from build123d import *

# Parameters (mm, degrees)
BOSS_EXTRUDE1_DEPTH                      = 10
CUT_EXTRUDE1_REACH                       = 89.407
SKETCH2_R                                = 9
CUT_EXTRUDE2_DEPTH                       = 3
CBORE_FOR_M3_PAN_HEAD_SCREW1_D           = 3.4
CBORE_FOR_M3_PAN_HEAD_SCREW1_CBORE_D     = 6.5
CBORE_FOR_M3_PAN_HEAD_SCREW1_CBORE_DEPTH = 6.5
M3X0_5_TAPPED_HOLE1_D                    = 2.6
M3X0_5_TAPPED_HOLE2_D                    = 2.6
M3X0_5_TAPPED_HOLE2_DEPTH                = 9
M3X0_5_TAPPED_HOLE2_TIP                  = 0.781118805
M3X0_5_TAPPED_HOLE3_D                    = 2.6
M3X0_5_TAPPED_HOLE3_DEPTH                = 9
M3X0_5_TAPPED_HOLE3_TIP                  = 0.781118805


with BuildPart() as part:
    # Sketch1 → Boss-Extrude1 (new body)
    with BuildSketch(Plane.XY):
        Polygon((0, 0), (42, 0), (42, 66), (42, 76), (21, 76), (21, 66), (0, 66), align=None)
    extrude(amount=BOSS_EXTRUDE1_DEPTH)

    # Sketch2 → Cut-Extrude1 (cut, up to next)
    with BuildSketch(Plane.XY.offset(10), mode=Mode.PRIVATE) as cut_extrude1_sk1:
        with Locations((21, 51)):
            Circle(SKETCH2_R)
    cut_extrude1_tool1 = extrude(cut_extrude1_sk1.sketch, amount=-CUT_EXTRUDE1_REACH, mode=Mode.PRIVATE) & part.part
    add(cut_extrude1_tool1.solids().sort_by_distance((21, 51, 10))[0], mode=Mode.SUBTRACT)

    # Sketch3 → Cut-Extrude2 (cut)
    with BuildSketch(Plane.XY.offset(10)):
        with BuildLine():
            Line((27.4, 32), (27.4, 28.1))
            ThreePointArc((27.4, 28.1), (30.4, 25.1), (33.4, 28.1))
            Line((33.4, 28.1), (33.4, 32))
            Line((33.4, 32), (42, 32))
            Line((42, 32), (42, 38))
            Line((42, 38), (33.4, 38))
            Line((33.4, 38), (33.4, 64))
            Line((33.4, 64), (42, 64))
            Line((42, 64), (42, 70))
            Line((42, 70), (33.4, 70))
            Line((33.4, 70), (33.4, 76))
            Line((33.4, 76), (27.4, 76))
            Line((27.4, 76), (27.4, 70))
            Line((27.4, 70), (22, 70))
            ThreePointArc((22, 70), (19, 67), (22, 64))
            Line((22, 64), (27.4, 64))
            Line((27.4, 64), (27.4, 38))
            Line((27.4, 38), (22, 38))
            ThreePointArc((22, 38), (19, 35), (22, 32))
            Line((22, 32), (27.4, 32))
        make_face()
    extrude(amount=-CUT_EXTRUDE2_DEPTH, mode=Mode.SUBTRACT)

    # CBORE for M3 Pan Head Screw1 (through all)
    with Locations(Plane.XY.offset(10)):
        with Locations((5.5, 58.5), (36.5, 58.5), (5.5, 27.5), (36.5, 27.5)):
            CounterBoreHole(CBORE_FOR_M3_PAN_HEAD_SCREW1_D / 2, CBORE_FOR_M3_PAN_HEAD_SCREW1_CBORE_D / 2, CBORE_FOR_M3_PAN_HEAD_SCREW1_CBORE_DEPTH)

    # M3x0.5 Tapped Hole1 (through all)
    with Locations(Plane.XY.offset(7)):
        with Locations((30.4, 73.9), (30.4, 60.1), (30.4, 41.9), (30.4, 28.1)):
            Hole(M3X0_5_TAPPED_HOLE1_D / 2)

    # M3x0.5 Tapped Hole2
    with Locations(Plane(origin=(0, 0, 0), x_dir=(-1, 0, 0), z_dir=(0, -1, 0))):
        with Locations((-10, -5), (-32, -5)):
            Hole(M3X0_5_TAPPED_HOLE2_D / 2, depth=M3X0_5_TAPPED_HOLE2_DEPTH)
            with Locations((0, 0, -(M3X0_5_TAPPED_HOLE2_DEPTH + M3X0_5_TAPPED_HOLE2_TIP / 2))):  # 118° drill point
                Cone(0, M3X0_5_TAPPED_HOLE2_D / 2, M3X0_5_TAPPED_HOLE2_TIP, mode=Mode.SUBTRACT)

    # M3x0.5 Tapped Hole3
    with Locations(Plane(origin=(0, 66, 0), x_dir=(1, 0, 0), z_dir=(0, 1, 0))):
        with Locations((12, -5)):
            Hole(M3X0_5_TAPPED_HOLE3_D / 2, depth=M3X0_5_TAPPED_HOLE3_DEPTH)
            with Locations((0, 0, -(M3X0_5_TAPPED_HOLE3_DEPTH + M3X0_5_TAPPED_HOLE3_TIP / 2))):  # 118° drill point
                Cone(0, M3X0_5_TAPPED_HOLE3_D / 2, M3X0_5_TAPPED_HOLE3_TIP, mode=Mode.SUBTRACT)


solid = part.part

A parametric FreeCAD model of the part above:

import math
import FreeCAD as App
import Part
import Sketcher
from FreeCAD import Vector
Q = App.Units.Quantity


def add_polygon(sketch, points):
    """Adds a closed chain of lines whose ends are joined by coincident constraints."""
    first, n = sketch.GeometryCount, len(points)
    for a, b in zip(points, points[1:] + points[:1]):
        sketch.addGeometry(Part.LineSegment(App.Vector(*a, 0), App.Vector(*b, 0)), False)
    for i in range(n):
        sketch.addConstraint(Sketcher.Constraint("Coincident", first + i, 2, first + (i + 1) % n, 1))

doc = App.newDocument("Part")
body = doc.addObject("PartDesign::Body", "Body")

# Sketch on XY plane
sketch1 = body.newObject("Sketcher::SketchObject", "Sketch")
sketch1.AttachmentSupport = (doc.getObject("XY_Plane"), [""])
sketch1.MapMode = "FlatFace"
add_polygon(sketch1, [(0, 0), (42, 0), (42, 76), (21, 76), (21, 66), (0, 66)])  # lines 0-5
sketch1.addConstraint(Sketcher.Constraint("Horizontal", 0))
sketch1.addConstraint(Sketcher.Constraint("Vertical", 1))
sketch1.addConstraint(Sketcher.Constraint("Horizontal", 2))
sketch1.addConstraint(Sketcher.Constraint("Vertical", 3))
sketch1.addConstraint(Sketcher.Constraint("Horizontal", 4))
sketch1.addConstraint(Sketcher.Constraint("Vertical", 5))
sketch1.addConstraint(Sketcher.Constraint("Coincident", 5, 2, -1, 1))
sketch1.addConstraint(Sketcher.Constraint("Equal", 2, 4))
sketch1.addConstraint(Sketcher.Constraint("DistanceX", 0, 1, 0, 2, Q("42 mm")))
sketch1.addConstraint(Sketcher.Constraint("DistanceY", 1, 1, 1, 2, Q("76 mm")))
sketch1.addConstraint(Sketcher.Constraint("DistanceY", 3, 2, 3, 1, Q("10 mm")))
pad1 = body.newObject("PartDesign::Pad", "Pad")
pad1.Profile = sketch1
pad1.Length = 10

# Sketch on XY plane
sketch2 = body.newObject("Sketcher::SketchObject", "Sketch001")
sketch2.AttachmentSupport = (doc.getObject("XY_Plane"), [""])
sketch2.MapMode = "FlatFace"
sketch2.AttachmentOffset = App.Placement(Vector(0, 0, 10), App.Rotation())
sketch2.addGeometry(Part.Circle(Vector(21, 51, 0), Vector(0, 0, 1), 9), False)
sketch2.addConstraint(Sketcher.Constraint("Diameter", 0, Q("18 mm")))
sketch2.addConstraint(Sketcher.Constraint("DistanceX", -1, 1, 0, 3, Q("21 mm")))
sketch2.addConstraint(Sketcher.Constraint("DistanceY", -1, 1, 0, 3, Q("51 mm")))
pocket1 = body.newObject("PartDesign::Pocket", "Pocket")
pocket1.Profile = sketch2
pocket1.Type = "UpToFirst"

# Sketch on XY plane
sketch3 = body.newObject("Sketcher::SketchObject", "Sketch002")
sketch3.AttachmentSupport = (doc.getObject("XY_Plane"), [""])
sketch3.MapMode = "FlatFace"
sketch3.AttachmentOffset = App.Placement(Vector(0, 0, 10), App.Rotation())
sketch3.addGeometry(Part.LineSegment(Vector(27.4, 32, 0), Vector(27.4, 28.1, 0)), False)
sketch3.addGeometry(Part.ArcOfCircle(Part.Circle(Vector(30.4, 28.1, 0), Vector(0, 0, 1), 3), math.radians(180), math.radians(360)), False)
sketch3.addGeometry(Part.LineSegment(Vector(33.4, 28.1, 0), Vector(33.4, 32, 0)), False)
sketch3.addGeometry(Part.LineSegment(Vector(33.4, 32, 0), Vector(42, 32, 0)), False)
sketch3.addGeometry(Part.LineSegment(Vector(42, 32, 0), Vector(42, 38, 0)), False)
sketch3.addGeometry(Part.LineSegment(Vector(42, 38, 0), Vector(33.4, 38, 0)), False)
sketch3.addGeometry(Part.LineSegment(Vector(33.4, 38, 0), Vector(33.4, 64, 0)), False)
sketch3.addGeometry(Part.LineSegment(Vector(33.4, 64, 0), Vector(42, 64, 0)), False)
sketch3.addGeometry(Part.LineSegment(Vector(42, 64, 0), Vector(42, 70, 0)), False)
sketch3.addGeometry(Part.LineSegment(Vector(42, 70, 0), Vector(33.4, 70, 0)), False)
sketch3.addGeometry(Part.LineSegment(Vector(33.4, 70, 0), Vector(33.4, 76, 0)), False)
sketch3.addGeometry(Part.LineSegment(Vector(33.4, 76, 0), Vector(27.4, 76, 0)), False)
sketch3.addGeometry(Part.LineSegment(Vector(27.4, 76, 0), Vector(27.4, 70, 0)), False)
sketch3.addGeometry(Part.LineSegment(Vector(27.4, 70, 0), Vector(22, 70, 0)), False)
sketch3.addGeometry(Part.ArcOfCircle(Part.Circle(Vector(22, 67, 0), Vector(0, 0, 1), 3), math.radians(90), math.radians(270)), False)
sketch3.addGeometry(Part.LineSegment(Vector(22, 64, 0), Vector(27.4, 64, 0)), False)
sketch3.addGeometry(Part.LineSegment(Vector(27.4, 64, 0), Vector(27.4, 38, 0)), False)
sketch3.addGeometry(Part.LineSegment(Vector(27.4, 38, 0), Vector(22, 38, 0)), False)
sketch3.addGeometry(Part.ArcOfCircle(Part.Circle(Vector(22, 35, 0), Vector(0, 0, 1), 3), math.radians(90), math.radians(270)), False)
sketch3.addGeometry(Part.LineSegment(Vector(22, 32, 0), Vector(27.4, 32, 0)), False)
sketch3.addConstraint(Sketcher.Constraint("Tangent", 0, 2, 1, 1))
sketch3.addConstraint(Sketcher.Constraint("Tangent", 1, 2, 2, 1))
sketch3.addConstraint(Sketcher.Constraint("Coincident", 2, 2, 3, 1))
sketch3.addConstraint(Sketcher.Constraint("Coincident", 3, 2, 4, 1))
sketch3.addConstraint(Sketcher.Constraint("Coincident", 4, 2, 5, 1))
sketch3.addConstraint(Sketcher.Constraint("Coincident", 5, 2, 6, 1))
sketch3.addConstraint(Sketcher.Constraint("Coincident", 6, 2, 7, 1))
sketch3.addConstraint(Sketcher.Constraint("Coincident", 7, 2, 8, 1))
sketch3.addConstraint(Sketcher.Constraint("Coincident", 8, 2, 9, 1))
sketch3.addConstraint(Sketcher.Constraint("Coincident", 9, 2, 10, 1))
sketch3.addConstraint(Sketcher.Constraint("Coincident", 10, 2, 11, 1))
sketch3.addConstraint(Sketcher.Constraint("Coincident", 11, 2, 12, 1))
sketch3.addConstraint(Sketcher.Constraint("Coincident", 12, 2, 13, 1))
sketch3.addConstraint(Sketcher.Constraint("Tangent", 13, 2, 14, 1))
sketch3.addConstraint(Sketcher.Constraint("Tangent", 14, 2, 15, 1))
sketch3.addConstraint(Sketcher.Constraint("Coincident", 15, 2, 16, 1))
sketch3.addConstraint(Sketcher.Constraint("Coincident", 16, 2, 17, 1))
sketch3.addConstraint(Sketcher.Constraint("Tangent", 17, 2, 18, 1))
sketch3.addConstraint(Sketcher.Constraint("Tangent", 18, 2, 19, 1))
sketch3.addConstraint(Sketcher.Constraint("Coincident", 19, 2, 0, 1))
sketch3.addConstraint(Sketcher.Constraint("Vertical", 0))
sketch3.addConstraint(Sketcher.Constraint("Vertical", 2))
sketch3.addConstraint(Sketcher.Constraint("Horizontal", 3))
sketch3.addConstraint(Sketcher.Constraint("Vertical", 4))
sketch3.addConstraint(Sketcher.Constraint("Horizontal", 5))
sketch3.addConstraint(Sketcher.Constraint("Vertical", 6))
sketch3.addConstraint(Sketcher.Constraint("Horizontal", 7))
sketch3.addConstraint(Sketcher.Constraint("Vertical", 8))
sketch3.addConstraint(Sketcher.Constraint("Horizontal", 9))
sketch3.addConstraint(Sketcher.Constraint("Vertical", 10))
sketch3.addConstraint(Sketcher.Constraint("Horizontal", 11))
sketch3.addConstraint(Sketcher.Constraint("Vertical", 12))
sketch3.addConstraint(Sketcher.Constraint("Horizontal", 13))
sketch3.addConstraint(Sketcher.Constraint("Horizontal", 15))
sketch3.addConstraint(Sketcher.Constraint("Vertical", 16))
sketch3.addConstraint(Sketcher.Constraint("Horizontal", 17))
sketch3.addConstraint(Sketcher.Constraint("Horizontal", 19))
sketch3.addConstraint(Sketcher.Constraint("Equal", 1, 14))
sketch3.addConstraint(Sketcher.Constraint("Equal", 14, 18))
sketch3.addConstraint(Sketcher.Constraint("Horizontal", 9, 2, 12, 2))
sketch3.addConstraint(Sketcher.Constraint("Horizontal", 7, 2, 14, 2))
sketch3.addConstraint(Sketcher.Constraint("Horizontal", 5, 2, 16, 2))
sketch3.addConstraint(Sketcher.Constraint("Horizontal", 3, 2, 18, 2))
sketch3.addConstraint(Sketcher.Constraint("Vertical", 14, 3, 18, 3))
sketch3.addConstraint(Sketcher.Constraint("Vertical", 2, 2, 5, 2))
sketch3.addConstraint(Sketcher.Constraint("Vertical", 4, 2, 7, 2))
sketch3.addConstraint(Sketcher.Constraint("Vertical", 6, 2, 9, 2))
sketch3.addConstraint(Sketcher.Constraint("Vertical", 0, 2, 11, 2))
sketch3.addConstraint(Sketcher.Constraint("Vertical", 12, 2, 15, 2))
sketch3.addConstraint(Sketcher.Constraint("Equal", 8, 10))
sketch3.addConstraint(Sketcher.Constraint("Radius", 1, Q("3 mm")))
sketch3.addConstraint(Sketcher.Constraint("DistanceY", 6, 1, 6, 2, Q("26 mm")))
sketch3.addConstraint(Sketcher.Constraint("DistanceX", 3, 1, 3, 2, Q("8.6 mm")))
sketch3.addConstraint(Sketcher.Constraint("DistanceX", 13, 2, 13, 1, Q("5.4 mm")))
sketch3.addConstraint(Sketcher.Constraint("DistanceY", 0, 2, 0, 1, Q("3.9 mm")))
sketch3.addConstraint(Sketcher.Constraint("DistanceX", -1, 1, 14, 3, Q("22 mm")))
sketch3.addConstraint(Sketcher.Constraint("DistanceY", -1, 1, 14, 3, Q("67 mm")))
pocket2 = body.newObject("PartDesign::Pocket", "Pocket001")
pocket2.Profile = sketch3
pocket2.Length = 3

# Sketch on XY plane
sketch4 = body.newObject("Sketcher::SketchObject", "Sketch003")
sketch4.AttachmentSupport = (doc.getObject("XY_Plane"), [""])
sketch4.MapMode = "FlatFace"
sketch4.AttachmentOffset = App.Placement(Vector(0, 0, 10), App.Rotation())
sketch4.addGeometry(Part.Circle(Vector(5.5, 58.5, 0), Vector(0, 0, 1), 1.7), False)
sketch4.addGeometry(Part.Circle(Vector(36.5, 58.5, 0), Vector(0, 0, 1), 1.7), False)
sketch4.addGeometry(Part.Circle(Vector(5.5, 27.5, 0), Vector(0, 0, 1), 1.7), False)
sketch4.addGeometry(Part.Circle(Vector(36.5, 27.5, 0), Vector(0, 0, 1), 1.7), False)
sketch4.addConstraint(Sketcher.Constraint("Equal", 0, 1))
sketch4.addConstraint(Sketcher.Constraint("Equal", 1, 2))
sketch4.addConstraint(Sketcher.Constraint("Equal", 2, 3))
sketch4.addConstraint(Sketcher.Constraint("Horizontal", 0, 3, 1, 3))
sketch4.addConstraint(Sketcher.Constraint("Horizontal", 2, 3, 3, 3))
sketch4.addConstraint(Sketcher.Constraint("Vertical", 0, 3, 2, 3))
sketch4.addConstraint(Sketcher.Constraint("Vertical", 1, 3, 3, 3))
sketch4.addConstraint(Sketcher.Constraint("Diameter", 0, Q("3.4 mm")))
sketch4.addConstraint(Sketcher.Constraint("DistanceX", 0, 3, 1, 3, Q("31 mm")))
sketch4.addConstraint(Sketcher.Constraint("DistanceY", 2, 3, 0, 3, Q("31 mm")))
sketch4.addConstraint(Sketcher.Constraint("DistanceX", -1, 1, 0, 3, Q("5.5 mm")))
sketch4.addConstraint(Sketcher.Constraint("DistanceY", -1, 1, 0, 3, Q("58.5 mm")))
doc.recompute()
hole = body.newObject("PartDesign::Hole", "Hole")
hole.Profile = sketch4
hole.ThreadType = "None"
hole.Diameter = 3.4
hole.DepthType = "ThroughAll"
hole.HoleCutType = "Counterbore"
hole.HoleCutDiameter = 6.5
hole.HoleCutDepth = 6.5

# Sketch on XY plane
sketch5 = body.newObject("Sketcher::SketchObject", "Sketch004")
sketch5.AttachmentSupport = (doc.getObject("XY_Plane"), [""])
sketch5.MapMode = "FlatFace"
sketch5.AttachmentOffset = App.Placement(Vector(0, 0, 7), App.Rotation())
sketch5.addGeometry(Part.Circle(Vector(30.4, 73.9, 0), Vector(0, 0, 1), 1.3), False)
sketch5.addGeometry(Part.Circle(Vector(30.4, 60.1, 0), Vector(0, 0, 1), 1.3), False)
sketch5.addGeometry(Part.Circle(Vector(30.4, 41.9, 0), Vector(0, 0, 1), 1.3), False)
sketch5.addGeometry(Part.Circle(Vector(30.4, 28.1, 0), Vector(0, 0, 1), 1.3), False)
sketch5.addConstraint(Sketcher.Constraint("Equal", 0, 1))
sketch5.addConstraint(Sketcher.Constraint("Equal", 1, 2))
sketch5.addConstraint(Sketcher.Constraint("Equal", 2, 3))
sketch5.addConstraint(Sketcher.Constraint("Vertical", 0, 3, 1, 3))
sketch5.addConstraint(Sketcher.Constraint("Vertical", 1, 3, 2, 3))
sketch5.addConstraint(Sketcher.Constraint("Vertical", 2, 3, 3, 3))
sketch5.addConstraint(Sketcher.Constraint("Diameter", 0, Q("2.6 mm")))
sketch5.addConstraint(Sketcher.Constraint("DistanceY", 2, 3, 0, 3, Q("32 mm")))
sketch5.addConstraint(Sketcher.Constraint("DistanceY", 3, 3, 1, 3, Q("32 mm")))
sketch5.addConstraint(Sketcher.Constraint("DistanceX", -1, 1, 0, 3, Q("30.4 mm")))
sketch5.addConstraint(Sketcher.Constraint("DistanceY", -1, 1, 0, 3, Q("73.9 mm")))
sketch5.addConstraint(Sketcher.Constraint("DistanceY", -1, 1, 1, 3, Q("60.1 mm")))
doc.recompute()
hole2 = body.newObject("PartDesign::Hole", "Hole001")
hole2.Profile = sketch5
hole2.ThreadType = "None"
hole2.Diameter = 2.6
hole2.DepthType = "ThroughAll"

# Sketch on XZ plane
sketch6 = body.newObject("Sketcher::SketchObject", "Sketch005")
sketch6.AttachmentSupport = (doc.getObject("XZ_Plane"), [""])
sketch6.MapMode = "FlatFace"
sketch6.addGeometry(Part.Circle(Vector(10, 5, 0), Vector(0, 0, 1), 1.3), False)
sketch6.addGeometry(Part.Circle(Vector(32, 5, 0), Vector(0, 0, 1), 1.3), False)
sketch6.addConstraint(Sketcher.Constraint("Equal", 0, 1))
sketch6.addConstraint(Sketcher.Constraint("Horizontal", 0, 3, 1, 3))
sketch6.addConstraint(Sketcher.Constraint("Diameter", 0, Q("2.6 mm")))
sketch6.addConstraint(Sketcher.Constraint("DistanceX", -1, 1, 0, 3, Q("10 mm")))
sketch6.addConstraint(Sketcher.Constraint("DistanceY", -1, 1, 0, 3, Q("5 mm")))
sketch6.addConstraint(Sketcher.Constraint("DistanceX", -1, 1, 1, 3, Q("32 mm")))
doc.recompute()
hole3 = body.newObject("PartDesign::Hole", "Hole002")
hole3.Profile = sketch6
hole3.ThreadType = "None"
hole3.Diameter = 2.6
hole3.DepthType = "Dimension"
hole3.Depth = 9
hole3.DrillPoint = "Angled"
hole3.DrillPointAngle = 118

# Sketch on XZ plane
sketch7 = body.newObject("Sketcher::SketchObject", "Sketch006")
sketch7.AttachmentSupport = (doc.getObject("XZ_Plane"), [""])
sketch7.MapMode = "FlatFace"
sketch7.AttachmentOffset = App.Placement(Vector(0, 0, -66), App.Rotation())
sketch7.addGeometry(Part.Circle(Vector(12, 5, 0), Vector(0, 0, 1), 1.3), False)
sketch7.addConstraint(Sketcher.Constraint("Diameter", 0, Q("2.6 mm")))
sketch7.addConstraint(Sketcher.Constraint("DistanceX", -1, 1, 0, 3, Q("12 mm")))
sketch7.addConstraint(Sketcher.Constraint("DistanceY", -1, 1, 0, 3, Q("5 mm")))
doc.recompute()
hole4 = body.newObject("PartDesign::Hole", "Hole003")
hole4.Profile = sketch7
hole4.ThreadType = "None"
hole4.Diameter = 2.6
hole4.DepthType = "Dimension"
hole4.Depth = 9
hole4.DrillPoint = "Angled"
hole4.DrillPointAngle = 118
hole4.Reversed = True

doc.recompute()
